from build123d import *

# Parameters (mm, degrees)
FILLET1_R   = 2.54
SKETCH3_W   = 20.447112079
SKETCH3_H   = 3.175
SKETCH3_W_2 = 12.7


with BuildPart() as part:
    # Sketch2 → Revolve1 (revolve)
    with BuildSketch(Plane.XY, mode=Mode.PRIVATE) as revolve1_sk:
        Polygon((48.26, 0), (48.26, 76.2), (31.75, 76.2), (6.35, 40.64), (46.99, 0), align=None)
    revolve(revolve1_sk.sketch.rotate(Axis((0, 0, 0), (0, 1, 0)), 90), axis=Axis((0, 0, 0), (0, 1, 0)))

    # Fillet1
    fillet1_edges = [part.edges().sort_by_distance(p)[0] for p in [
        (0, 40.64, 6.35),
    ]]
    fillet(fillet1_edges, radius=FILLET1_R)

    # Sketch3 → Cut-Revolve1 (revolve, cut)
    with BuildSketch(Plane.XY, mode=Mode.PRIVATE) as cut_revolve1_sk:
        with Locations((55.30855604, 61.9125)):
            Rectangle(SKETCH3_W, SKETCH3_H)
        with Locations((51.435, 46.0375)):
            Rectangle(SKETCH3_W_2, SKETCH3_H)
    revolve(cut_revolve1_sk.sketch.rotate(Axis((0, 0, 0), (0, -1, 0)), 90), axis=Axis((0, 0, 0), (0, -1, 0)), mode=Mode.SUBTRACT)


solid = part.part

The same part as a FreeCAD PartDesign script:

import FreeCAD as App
import Part
import Sketcher
Q = App.Units.Quantity


def edges_at(feature, points):
    """Names of the edges that pass closest to the given points."""
    edges = feature.Shape.Edges
    near = lambda p: min(range(len(edges)), key=lambda i: edges[i].distToShape(Part.Vertex(*p))[0])
    return sorted({f"Edge{near(p) + 1}" for p in points})


def add_polygon(sketch, points):
    """Adds a closed chain of lines whose ends are joined by coincident constraints."""
    first, n = sketch.GeometryCount, len(points)
    for a, b in zip(points, points[1:] + points[:1]):
        sketch.addGeometry(Part.LineSegment(App.Vector(*a, 0), App.Vector(*b, 0)), False)
    for i in range(n):
        sketch.addConstraint(Sketcher.Constraint("Coincident", first + i, 2, first + (i + 1) % n, 1))

doc = App.newDocument("Part")
body = doc.addObject("PartDesign::Body", "Body")

sketch1 = body.newObject("Sketcher::SketchObject", "Sketch")
sketch1.AttachmentSupport = (doc.getObject("XY_Plane"), [""])
sketch1.MapMode = "FlatFace"
add_polygon(sketch1, [(48.3, 0), (48.3, 76.2), (31.8, 76.2), (6.3, 40.6), (47, 0)])
sketch1.addConstraint(Sketcher.Constraint("Vertical", 0))
sketch1.addConstraint(Sketcher.Constraint("Horizontal", 1))
sketch1.addConstraint(Sketcher.Constraint("Horizontal", 4))
sketch1.addConstraint(Sketcher.Constraint("PointOnObject", 3, 2, -1))
sketch1.addConstraint(Sketcher.Constraint("DistanceY", 0, 1, 0, 2, Q("3 in")))
sketch1.addConstraint(Sketcher.Constraint("Angle", 3, Q("-45 deg")))
sketch1.addConstraint(Sketcher.Constraint("DistanceX", 2, 2, 1, 2, Q("1 in")))
sketch1.addConstraint(Sketcher.Constraint("DistanceX", 1, 2, 1, 1, Q("0.65 in")))
sketch1.addConstraint(Sketcher.Constraint("DistanceX", 4, 1, 4, 2, Q("0.05 in")))
sketch1.addConstraint(Sketcher.Constraint("DistanceX", -1, 1, 0, 2, Q("1.9 in")))
revolution = body.newObject("PartDesign::Revolution", "Revolution")
revolution.Profile = sketch1
revolution.ReferenceAxis = (sketch1, ["V_Axis"])
revolution.Angle = 360
doc.recompute()

fillet = body.newObject("PartDesign::Fillet", "Fillet")
fillet.Base = (revolution, edges_at(revolution, [(0, 40.64, 6.35)]))
fillet.Radius = Q("0.1 in")

sketch2 = body.newObject("Sketcher::SketchObject", "Sketch001")
sketch2.AttachmentSupport = (doc.getObject("XY_Plane"), [""])
sketch2.MapMode = "FlatFace"
add_polygon(sketch2, [(45.1, 63.5), (45.1, 60.3), (65.5, 60.3), (65.5, 63.5)])
add_polygon(sketch2, [(45.1, 47.6), (45.1, 44.5), (57.8, 44.5), (57.8, 47.6)])
sketch2.addConstraint(Sketcher.Constraint("Vertical", 0))
sketch2.addConstraint(Sketcher.Constraint("Horizontal", 1))
sketch2.addConstraint(Sketcher.Constraint("Vertical", 2))
sketch2.addConstraint(Sketcher.Constraint("Horizontal", 3))
sketch2.addConstraint(Sketcher.Constraint("Vertical", 4))
sketch2.addConstraint(Sketcher.Constraint("Horizontal", 5))
sketch2.addConstraint(Sketcher.Constraint("Vertical", 6))
sketch2.addConstraint(Sketcher.Constraint("Horizontal", 7))
sketch2.addConstraint(Sketcher.Constraint("Vertical", 3, 2, 4, 2))
sketch2.addConstraint(Sketcher.Constraint("Equal", 2, 4))
sketch2.addConstraint(Sketcher.Constraint("DistanceX", 5, 1, 5, 2, Q("0.5 in")))
sketch2.addConstraint(Sketcher.Constraint("DistanceY", -1, 1, 2, 2, Q("2.5 in")))
sketch2.addConstraint(Sketcher.Constraint("DistanceY", 6, 2, 1, 2, Q("0.5 in")))
sketch2.addConstraint(Sketcher.Constraint("DistanceY", 0, 2, 0, 1, Q("0.125 in")))
sketch2.addConstraint(Sketcher.Constraint("DistanceX", -1, 1, 0, 2, Q("1.775 in")))
sketch2.addConstraint(Sketcher.Constraint("DistanceX", 1, 1, 1, 2, Q("20.447112 mm")))
groove = body.newObject("PartDesign::Groove", "Groove")
groove.Profile = sketch2
groove.ReferenceAxis = (sketch2, ["V_Axis"])
groove.Angle = 360

doc.recompute()
